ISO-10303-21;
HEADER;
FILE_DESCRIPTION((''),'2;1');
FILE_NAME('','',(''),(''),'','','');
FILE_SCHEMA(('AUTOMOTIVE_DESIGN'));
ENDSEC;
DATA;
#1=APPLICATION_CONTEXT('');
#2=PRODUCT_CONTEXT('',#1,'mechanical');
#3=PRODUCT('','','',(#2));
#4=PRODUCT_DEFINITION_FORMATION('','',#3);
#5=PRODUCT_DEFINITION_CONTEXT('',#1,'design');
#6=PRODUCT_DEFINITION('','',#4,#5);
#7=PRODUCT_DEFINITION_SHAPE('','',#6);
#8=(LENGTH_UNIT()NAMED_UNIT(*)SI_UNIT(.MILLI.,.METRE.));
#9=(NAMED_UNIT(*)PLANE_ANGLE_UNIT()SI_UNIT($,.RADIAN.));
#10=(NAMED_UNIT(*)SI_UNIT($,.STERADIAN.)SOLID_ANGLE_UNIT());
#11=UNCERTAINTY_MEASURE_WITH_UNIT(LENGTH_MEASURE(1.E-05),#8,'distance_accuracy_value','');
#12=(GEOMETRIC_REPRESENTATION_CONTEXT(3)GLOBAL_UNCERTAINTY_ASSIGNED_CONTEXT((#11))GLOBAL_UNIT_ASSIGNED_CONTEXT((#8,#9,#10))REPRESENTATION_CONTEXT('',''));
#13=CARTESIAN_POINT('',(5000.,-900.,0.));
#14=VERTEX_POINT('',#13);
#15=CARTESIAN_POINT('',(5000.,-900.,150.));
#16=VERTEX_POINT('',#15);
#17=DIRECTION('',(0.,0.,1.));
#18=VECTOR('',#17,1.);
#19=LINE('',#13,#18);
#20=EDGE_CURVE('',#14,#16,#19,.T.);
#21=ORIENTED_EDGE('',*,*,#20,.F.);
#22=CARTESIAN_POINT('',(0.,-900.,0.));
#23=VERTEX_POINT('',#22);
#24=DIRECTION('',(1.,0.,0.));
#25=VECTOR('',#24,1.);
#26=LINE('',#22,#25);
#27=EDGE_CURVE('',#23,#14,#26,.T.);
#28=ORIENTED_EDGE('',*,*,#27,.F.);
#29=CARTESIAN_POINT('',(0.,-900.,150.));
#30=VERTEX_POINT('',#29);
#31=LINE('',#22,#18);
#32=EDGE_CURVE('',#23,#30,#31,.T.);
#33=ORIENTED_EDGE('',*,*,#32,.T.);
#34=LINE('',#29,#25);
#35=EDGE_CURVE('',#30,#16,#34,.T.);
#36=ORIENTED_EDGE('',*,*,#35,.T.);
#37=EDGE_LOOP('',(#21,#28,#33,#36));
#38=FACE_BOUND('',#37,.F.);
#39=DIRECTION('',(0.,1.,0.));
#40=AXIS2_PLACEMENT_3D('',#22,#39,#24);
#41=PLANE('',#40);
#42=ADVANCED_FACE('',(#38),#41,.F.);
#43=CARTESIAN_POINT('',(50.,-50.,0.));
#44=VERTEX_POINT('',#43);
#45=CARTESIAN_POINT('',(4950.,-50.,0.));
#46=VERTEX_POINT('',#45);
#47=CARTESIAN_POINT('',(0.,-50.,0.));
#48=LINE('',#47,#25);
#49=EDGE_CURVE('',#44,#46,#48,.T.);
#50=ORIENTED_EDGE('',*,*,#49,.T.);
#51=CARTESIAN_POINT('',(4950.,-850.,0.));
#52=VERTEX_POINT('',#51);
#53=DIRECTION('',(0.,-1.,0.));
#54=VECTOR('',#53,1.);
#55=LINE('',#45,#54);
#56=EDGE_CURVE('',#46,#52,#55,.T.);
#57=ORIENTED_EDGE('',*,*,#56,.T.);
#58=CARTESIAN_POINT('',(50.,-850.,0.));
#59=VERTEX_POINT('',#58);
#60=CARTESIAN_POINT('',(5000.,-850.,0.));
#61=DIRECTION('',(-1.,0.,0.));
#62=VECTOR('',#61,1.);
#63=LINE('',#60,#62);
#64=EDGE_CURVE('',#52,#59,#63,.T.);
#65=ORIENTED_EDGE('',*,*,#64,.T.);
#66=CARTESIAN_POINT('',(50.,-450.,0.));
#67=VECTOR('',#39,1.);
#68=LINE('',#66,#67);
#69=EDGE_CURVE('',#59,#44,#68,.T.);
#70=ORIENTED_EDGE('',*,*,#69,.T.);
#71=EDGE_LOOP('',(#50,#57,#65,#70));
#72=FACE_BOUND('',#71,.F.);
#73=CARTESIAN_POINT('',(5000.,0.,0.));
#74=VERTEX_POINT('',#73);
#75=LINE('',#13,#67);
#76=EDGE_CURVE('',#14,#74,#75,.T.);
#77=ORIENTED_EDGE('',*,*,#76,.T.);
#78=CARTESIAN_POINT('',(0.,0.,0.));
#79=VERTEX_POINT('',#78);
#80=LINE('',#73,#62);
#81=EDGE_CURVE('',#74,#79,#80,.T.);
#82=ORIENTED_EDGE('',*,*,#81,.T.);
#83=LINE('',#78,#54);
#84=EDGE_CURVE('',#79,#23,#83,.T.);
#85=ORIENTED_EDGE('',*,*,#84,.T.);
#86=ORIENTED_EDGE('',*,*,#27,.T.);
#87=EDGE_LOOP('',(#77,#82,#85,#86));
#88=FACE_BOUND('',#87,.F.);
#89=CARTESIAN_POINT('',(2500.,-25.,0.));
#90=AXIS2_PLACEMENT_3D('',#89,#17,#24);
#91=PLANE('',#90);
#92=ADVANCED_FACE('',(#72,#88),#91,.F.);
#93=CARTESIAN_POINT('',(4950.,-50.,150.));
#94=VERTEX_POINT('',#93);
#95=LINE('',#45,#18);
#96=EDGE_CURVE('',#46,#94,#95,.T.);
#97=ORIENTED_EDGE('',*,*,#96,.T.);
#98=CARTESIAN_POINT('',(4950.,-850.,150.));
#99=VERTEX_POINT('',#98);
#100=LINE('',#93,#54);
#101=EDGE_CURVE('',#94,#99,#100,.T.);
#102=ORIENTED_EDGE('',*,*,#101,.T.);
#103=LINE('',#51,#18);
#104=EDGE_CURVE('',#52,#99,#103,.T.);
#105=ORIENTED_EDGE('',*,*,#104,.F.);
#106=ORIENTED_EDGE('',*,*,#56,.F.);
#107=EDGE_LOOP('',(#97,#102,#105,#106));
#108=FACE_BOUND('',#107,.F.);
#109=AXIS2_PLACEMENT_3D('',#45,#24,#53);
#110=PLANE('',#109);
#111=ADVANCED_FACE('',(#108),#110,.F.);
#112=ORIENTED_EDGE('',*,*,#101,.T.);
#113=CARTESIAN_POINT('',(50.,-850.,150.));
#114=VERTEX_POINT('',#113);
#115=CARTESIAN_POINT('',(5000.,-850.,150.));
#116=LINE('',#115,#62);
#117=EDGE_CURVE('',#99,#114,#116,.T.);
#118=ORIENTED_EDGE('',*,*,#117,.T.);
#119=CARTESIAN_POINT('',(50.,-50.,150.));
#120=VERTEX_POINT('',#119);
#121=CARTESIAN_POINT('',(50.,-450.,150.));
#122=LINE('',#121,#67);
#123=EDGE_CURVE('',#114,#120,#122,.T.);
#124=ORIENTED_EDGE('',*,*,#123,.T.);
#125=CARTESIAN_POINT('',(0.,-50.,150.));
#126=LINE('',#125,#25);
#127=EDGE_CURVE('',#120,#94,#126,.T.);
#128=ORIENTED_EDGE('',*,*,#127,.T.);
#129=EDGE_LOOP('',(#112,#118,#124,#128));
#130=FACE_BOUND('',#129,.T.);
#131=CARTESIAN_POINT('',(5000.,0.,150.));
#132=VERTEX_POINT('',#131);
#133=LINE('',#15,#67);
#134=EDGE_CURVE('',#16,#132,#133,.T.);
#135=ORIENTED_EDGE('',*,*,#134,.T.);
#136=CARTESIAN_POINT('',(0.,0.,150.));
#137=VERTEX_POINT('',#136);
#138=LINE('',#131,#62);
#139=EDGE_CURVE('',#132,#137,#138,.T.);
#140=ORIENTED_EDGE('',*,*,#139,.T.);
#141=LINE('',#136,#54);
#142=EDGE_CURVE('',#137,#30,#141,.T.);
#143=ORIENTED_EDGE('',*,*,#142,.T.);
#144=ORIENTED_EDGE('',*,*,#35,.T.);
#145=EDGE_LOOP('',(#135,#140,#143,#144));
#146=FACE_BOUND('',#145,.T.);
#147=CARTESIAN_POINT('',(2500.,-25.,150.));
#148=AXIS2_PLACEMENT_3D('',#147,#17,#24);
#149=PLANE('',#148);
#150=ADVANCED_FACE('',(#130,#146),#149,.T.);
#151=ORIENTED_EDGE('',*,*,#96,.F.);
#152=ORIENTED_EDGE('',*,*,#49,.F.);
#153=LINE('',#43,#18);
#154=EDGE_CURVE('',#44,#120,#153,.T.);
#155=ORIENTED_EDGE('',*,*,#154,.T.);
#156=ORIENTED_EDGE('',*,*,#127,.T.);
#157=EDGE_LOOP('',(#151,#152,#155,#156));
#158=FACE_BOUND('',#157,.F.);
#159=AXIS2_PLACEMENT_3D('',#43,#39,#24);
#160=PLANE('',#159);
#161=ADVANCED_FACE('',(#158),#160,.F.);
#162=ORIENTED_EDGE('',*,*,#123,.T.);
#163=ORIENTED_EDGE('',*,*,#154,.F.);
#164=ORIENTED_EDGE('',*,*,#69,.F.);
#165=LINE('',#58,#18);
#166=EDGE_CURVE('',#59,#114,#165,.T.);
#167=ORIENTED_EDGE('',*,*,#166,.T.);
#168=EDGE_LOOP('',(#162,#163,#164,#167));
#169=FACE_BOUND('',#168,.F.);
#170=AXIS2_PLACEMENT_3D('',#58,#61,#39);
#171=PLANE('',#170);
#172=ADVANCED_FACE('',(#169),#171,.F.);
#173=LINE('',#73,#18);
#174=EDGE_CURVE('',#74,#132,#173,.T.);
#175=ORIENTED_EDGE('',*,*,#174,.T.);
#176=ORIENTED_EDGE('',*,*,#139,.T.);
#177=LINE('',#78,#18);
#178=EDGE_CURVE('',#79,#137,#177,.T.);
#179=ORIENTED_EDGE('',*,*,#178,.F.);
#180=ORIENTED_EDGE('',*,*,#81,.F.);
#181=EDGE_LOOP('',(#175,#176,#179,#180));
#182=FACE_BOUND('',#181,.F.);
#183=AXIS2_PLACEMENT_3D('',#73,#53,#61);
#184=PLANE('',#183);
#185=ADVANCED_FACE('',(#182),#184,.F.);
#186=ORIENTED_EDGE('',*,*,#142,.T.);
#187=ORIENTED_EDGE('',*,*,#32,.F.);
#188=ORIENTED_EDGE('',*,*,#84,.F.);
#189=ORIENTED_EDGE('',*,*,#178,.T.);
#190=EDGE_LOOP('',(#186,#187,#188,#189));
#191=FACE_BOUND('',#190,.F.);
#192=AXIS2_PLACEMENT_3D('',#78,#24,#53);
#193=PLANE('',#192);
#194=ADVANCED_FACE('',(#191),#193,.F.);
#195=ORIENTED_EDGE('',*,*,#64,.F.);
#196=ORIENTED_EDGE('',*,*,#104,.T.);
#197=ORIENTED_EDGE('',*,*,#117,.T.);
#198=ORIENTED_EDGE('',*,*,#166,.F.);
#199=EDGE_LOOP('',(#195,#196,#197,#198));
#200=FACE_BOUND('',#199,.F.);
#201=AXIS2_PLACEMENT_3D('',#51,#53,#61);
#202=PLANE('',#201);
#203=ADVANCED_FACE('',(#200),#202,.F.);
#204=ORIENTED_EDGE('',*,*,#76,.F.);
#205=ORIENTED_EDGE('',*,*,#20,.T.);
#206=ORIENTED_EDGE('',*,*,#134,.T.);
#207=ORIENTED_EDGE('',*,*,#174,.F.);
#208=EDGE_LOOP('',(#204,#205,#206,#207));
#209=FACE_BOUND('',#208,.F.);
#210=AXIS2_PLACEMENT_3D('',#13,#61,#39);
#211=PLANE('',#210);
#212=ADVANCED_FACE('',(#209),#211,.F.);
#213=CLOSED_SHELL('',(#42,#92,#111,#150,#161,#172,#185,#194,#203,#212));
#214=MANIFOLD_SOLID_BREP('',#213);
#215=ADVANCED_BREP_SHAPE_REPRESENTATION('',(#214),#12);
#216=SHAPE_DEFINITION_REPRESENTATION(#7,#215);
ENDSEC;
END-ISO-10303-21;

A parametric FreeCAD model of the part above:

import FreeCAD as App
import Part
import Sketcher
Q = App.Units.Quantity

doc = App.newDocument("Part")
params = doc.addObject("Spreadsheet::Sheet", "Params")
for row, (alias, value) in enumerate([
    ("sketch1_width", "5000 mm"),
    ("sketch1_width2", "4900 mm"),
    ("sketch1_height", "900 mm"),
    ("sketch1_height2", "800 mm"),
    ("pad1_length", "150 mm"),
], start=1):
    params.set(f"A{row}", alias)
    params.set(f"B{row}", "=" + value)
    params.setAlias(f"B{row}", alias)

body = doc.addObject("PartDesign::Body", "Body")

# Sketch on XY plane
sketch1 = doc.addObject("Sketcher::SketchObject", "Sketch")
body.addObject(sketch1)
sketch1.AttachmentSupport = (doc.XY_Plane, [""])
sketch1.MapMode = "FlatFace"
sketch1.addGeometry([
    Part.LineSegment(App.Vector(5000, 0, 0), App.Vector(0, 0, 0)),  # 0
    Part.LineSegment(App.Vector(0, 0, 0), App.Vector(0, -900, 0)),  # 1
    Part.LineSegment(App.Vector(0, -900, 0), App.Vector(5000, -900, 0)),  # 2
    Part.LineSegment(App.Vector(5000, -900, 0), App.Vector(5000, 0, 0)),  # 3
    Part.LineSegment(App.Vector(4950, -850, 0), App.Vector(50, -850, 0)),  # 4
    Part.LineSegment(App.Vector(50, -850, 0), App.Vector(50, -50, 0)),  # 5
    Part.LineSegment(App.Vector(50, -50, 0), App.Vector(4950, -50, 0)),  # 6
    Part.LineSegment(App.Vector(4950, -50, 0), App.Vector(4950, -850, 0)),  # 7
], False)
sketch1.addConstraint([
    Sketcher.Constraint("Coincident", 0, 2, 1, 1),
    Sketcher.Constraint("Coincident", 1, 2, 2, 1),
    Sketcher.Constraint("Coincident", 2, 2, 3, 1),
    Sketcher.Constraint("Coincident", 3, 2, 0, 1),
    Sketcher.Constraint("Coincident", 4, 2, 5, 1),
    Sketcher.Constraint("Coincident", 5, 2, 6, 1),
    Sketcher.Constraint("Coincident", 6, 2, 7, 1),
    Sketcher.Constraint("Coincident", 7, 2, 4, 1),
    Sketcher.Constraint("Horizontal", 0),
    Sketcher.Constraint("Vertical", 1),
    Sketcher.Constraint("Horizontal", 2),
    Sketcher.Constraint("Vertical", 3),
    Sketcher.Constraint("Horizontal", 4),
    Sketcher.Constraint("Vertical", 5),
    Sketcher.Constraint("Horizontal", 6),
    Sketcher.Constraint("Vertical", 7),
    Sketcher.Constraint("Coincident", 0, 2, -1, 1),
    Sketcher.Constraint("DistanceX", 0, 2, 0, 1, Q("5000 mm")),
    Sketcher.Constraint("DistanceX", 4, 2, 4, 1, Q("4900 mm")),
    Sketcher.Constraint("DistanceY", 1, 2, 1, 1, Q("900 mm")),
    Sketcher.Constraint("DistanceY", 5, 1, 5, 2, Q("800 mm")),
    Sketcher.Constraint("DistanceX", -1, 1, 4, 2, Q("50 mm")),
    Sketcher.Constraint("DistanceY", 4, 2, -1, 1, Q("850 mm")),
])
sketch1.setExpression("Constraints[17]", "Params.sketch1_width")
sketch1.setExpression("Constraints[18]", "Params.sketch1_width2")
sketch1.setExpression("Constraints[19]", "Params.sketch1_height")
sketch1.setExpression("Constraints[20]", "Params.sketch1_height2")
pad1 = doc.addObject("PartDesign::Pad", "Pad")
body.addObject(pad1)
pad1.Profile = sketch1
pad1.setExpression("Length", "Params.pad1_length")

doc.recompute()
